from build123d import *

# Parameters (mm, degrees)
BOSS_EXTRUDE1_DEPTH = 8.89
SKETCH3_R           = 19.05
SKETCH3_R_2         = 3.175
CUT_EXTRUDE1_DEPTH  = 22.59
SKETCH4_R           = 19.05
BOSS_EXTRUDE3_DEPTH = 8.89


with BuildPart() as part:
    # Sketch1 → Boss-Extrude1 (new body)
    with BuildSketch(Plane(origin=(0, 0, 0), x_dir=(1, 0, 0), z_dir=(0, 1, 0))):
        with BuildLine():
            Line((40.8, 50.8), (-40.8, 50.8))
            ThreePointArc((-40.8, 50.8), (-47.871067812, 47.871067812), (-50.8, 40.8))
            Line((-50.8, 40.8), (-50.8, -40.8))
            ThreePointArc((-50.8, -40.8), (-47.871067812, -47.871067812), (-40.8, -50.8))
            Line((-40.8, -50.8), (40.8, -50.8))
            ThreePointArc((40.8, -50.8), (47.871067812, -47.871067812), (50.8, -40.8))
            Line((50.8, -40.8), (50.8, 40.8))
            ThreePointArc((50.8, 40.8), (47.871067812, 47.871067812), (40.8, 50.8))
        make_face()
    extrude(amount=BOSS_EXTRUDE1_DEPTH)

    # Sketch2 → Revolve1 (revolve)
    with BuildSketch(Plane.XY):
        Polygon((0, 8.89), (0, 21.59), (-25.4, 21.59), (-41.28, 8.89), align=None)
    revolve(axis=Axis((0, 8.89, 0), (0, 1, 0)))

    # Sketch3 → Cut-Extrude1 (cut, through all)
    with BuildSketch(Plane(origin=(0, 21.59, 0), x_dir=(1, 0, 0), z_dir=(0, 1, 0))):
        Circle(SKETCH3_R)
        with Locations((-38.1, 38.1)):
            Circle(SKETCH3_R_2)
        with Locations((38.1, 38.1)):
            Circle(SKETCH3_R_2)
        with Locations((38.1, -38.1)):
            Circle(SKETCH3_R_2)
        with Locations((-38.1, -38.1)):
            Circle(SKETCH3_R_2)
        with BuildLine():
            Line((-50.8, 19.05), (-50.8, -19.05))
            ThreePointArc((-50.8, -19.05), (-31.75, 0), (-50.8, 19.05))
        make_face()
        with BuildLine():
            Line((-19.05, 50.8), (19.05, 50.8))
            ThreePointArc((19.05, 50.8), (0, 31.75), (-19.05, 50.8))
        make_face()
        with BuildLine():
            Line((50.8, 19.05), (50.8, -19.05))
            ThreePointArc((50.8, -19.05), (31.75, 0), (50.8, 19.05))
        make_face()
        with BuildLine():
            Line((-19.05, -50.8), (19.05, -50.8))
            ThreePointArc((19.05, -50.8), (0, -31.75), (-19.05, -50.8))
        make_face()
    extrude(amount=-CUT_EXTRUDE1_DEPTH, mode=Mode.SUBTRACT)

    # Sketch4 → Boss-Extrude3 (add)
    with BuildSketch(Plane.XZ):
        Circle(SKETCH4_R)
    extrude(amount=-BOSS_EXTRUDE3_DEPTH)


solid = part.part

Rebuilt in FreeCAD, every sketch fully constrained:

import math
import FreeCAD as App
import Part
import Sketcher
from FreeCAD import Vector
Q = App.Units.Quantity


def add_polygon(sketch, points):
    """Adds a closed chain of lines whose ends are joined by coincident constraints."""
    first, n = sketch.GeometryCount, len(points)
    for a, b in zip(points, points[1:] + points[:1]):
        sketch.addGeometry(Part.LineSegment(App.Vector(*a, 0), App.Vector(*b, 0)), False)
    for i in range(n):
        sketch.addConstraint(Sketcher.Constraint("Coincident", first + i, 2, first + (i + 1) % n, 1))

doc = App.newDocument("Part")
body = doc.addObject("PartDesign::Body", "Body")

# Sketch on XZ plane
sketch1 = body.newObject("Sketcher::SketchObject", "Sketch")
sketch1.AttachmentSupport = (doc.getObject("XZ_Plane"), [""])
sketch1.MapMode = "FlatFace"
sketch1.addGeometry([
    Part.LineSegment(Vector(41, -51, 0), Vector(-41, -51, 0)),  # 0
    Part.ArcOfCircle(Part.Circle(Vector(-41, -41, 0), Vector(0, 0, 1), 10), math.radians(180), math.radians(270)),  # 1
    Part.LineSegment(Vector(-51, -41, 0), Vector(-51, 41, 0)),  # 2
    Part.ArcOfCircle(Part.Circle(Vector(-41, 41, 0), Vector(0, 0, 1), 10), math.radians(90), math.radians(180)),  # 3
    Part.LineSegment(Vector(-41, 51, 0), Vector(41, 51, 0)),  # 4
    Part.ArcOfCircle(Part.Circle(Vector(41, 41, 0), Vector(0, 0, 1), 10), math.radians(0), math.radians(90)),  # 5
    Part.LineSegment(Vector(51, 41, 0), Vector(51, -41, 0)),  # 6
    Part.ArcOfCircle(Part.Circle(Vector(41, -41, 0), Vector(0, 0, 1), 10), math.radians(-90), math.radians(0)),  # 7
], False)
sketch1.addConstraint([
    Sketcher.Constraint("Tangent", 0, 2, 1, 2),
    Sketcher.Constraint("Tangent", 1, 1, 2, 1),
    Sketcher.Constraint("Tangent", 2, 2, 3, 2),
    Sketcher.Constraint("Tangent", 3, 1, 4, 1),
    Sketcher.Constraint("Tangent", 4, 2, 5, 2),
    Sketcher.Constraint("Tangent", 5, 1, 6, 1),
    Sketcher.Constraint("Tangent", 6, 2, 7, 2),
    Sketcher.Constraint("Tangent", 7, 1, 0, 1),
    Sketcher.Constraint("Horizontal", 0),
    Sketcher.Constraint("Vertical", 2),
    Sketcher.Constraint("Horizontal", 4),
    Sketcher.Constraint("Vertical", 6),
    Sketcher.Constraint("Equal", 1, 3),
    Sketcher.Constraint("Equal", 3, 5),
    Sketcher.Constraint("Equal", 5, 7),
    Sketcher.Constraint("Symmetric", 1, 3, 5, 3, -1, 1),
    Sketcher.Constraint("Equal", 4, 2),
    Sketcher.Constraint("DistanceY", 0, 2, -1, 1, Q("2 in")),
    Sketcher.Constraint("Radius", 1, Q("10 mm")),
])
pad1 = body.newObject("PartDesign::Pad", "Pad")
pad1.Profile = sketch1
pad1.Length = Q("0.35 in")
pad1.Reversed = True

# Sketch on XY plane
sketch2 = body.newObject("Sketcher::SketchObject", "Sketch001")
sketch2.AttachmentSupport = (doc.getObject("XY_Plane"), [""])
sketch2.MapMode = "FlatFace"
add_polygon(sketch2, [(0, 9), (0, 22), (-25, 22), (-41, 9)])  # lines 0-3
sketch2.addConstraint([
    Sketcher.Constraint("Vertical", 0),
    Sketcher.Constraint("Horizontal", 1),
    Sketcher.Constraint("Horizontal", 3),
    Sketcher.Constraint("PointOnObject", 0, 2, -2),
    Sketcher.Constraint("DistanceX", 1, 2, 1, 1, Q("1 in")),
    Sketcher.Constraint("DistanceY", 0, 1, 0, 2, Q("0.5 in")),
    Sketcher.Constraint("DistanceY", -1, 1, 0, 2, Q("0.85 in")),
    Sketcher.Constraint("DistanceX", 3, 1, 3, 2, Q("41.28 mm")),
])
revolution = body.newObject("PartDesign::Revolution", "Revolution")
revolution.Profile = sketch2
revolution.ReferenceAxis = (sketch2, ["V_Axis"])
revolution.Angle = 360

# Sketch on XZ plane
sketch3 = body.newObject("Sketcher::SketchObject", "Sketch002")
sketch3.AttachmentSupport = (doc.getObject("XZ_Plane"), [""])
sketch3.MapMode = "FlatFace"
sketch3.AttachmentOffset = App.Placement(Vector(0, 0, -0.85 * 25.4), App.Rotation())
sketch3.addGeometry([
    Part.Circle(Vector(0, 0, 0), Vector(0, 0, 1), 19.1),  # 0
    Part.Circle(Vector(-38.1, -38.1, 0), Vector(0, 0, 1), 3.2),  # 1
    Part.Circle(Vector(38.1, -38.1, 0), Vector(0, 0, 1), 3.2),  # 2
    Part.Circle(Vector(38.1, 38.1, 0), Vector(0, 0, 1), 3.2),  # 3
    Part.Circle(Vector(-38.1, 38.1, 0), Vector(0, 0, 1), 3.2),  # 4
    Part.LineSegment(Vector(-50.8, -19.1, 0), Vector(-50.8, 19.1, 0)),  # 5
    Part.ArcOfCircle(Part.Circle(Vector(-50.8, 0, 0), Vector(0, 0, 1), 19.1), math.radians(-90), math.radians(90)),  # 6
    Part.LineSegment(Vector(19.1, -50.8, 0), Vector(-19.1, -50.8, 0)),  # 7
    Part.ArcOfCircle(Part.Circle(Vector(0, -50.8, 0), Vector(0, 0, 1), 19.1), math.radians(0), math.radians(180)),  # 8
    Part.LineSegment(Vector(50.8, 19.1, 0), Vector(50.8, -19.1, 0)),  # 9
    Part.ArcOfCircle(Part.Circle(Vector(50.8, 0, 0), Vector(0, 0, 1), 19.1), math.radians(90), math.radians(270)),  # 10
    Part.LineSegment(Vector(-19.1, 50.8, 0), Vector(19.1, 50.8, 0)),  # 11
    Part.ArcOfCircle(Part.Circle(Vector(0, 50.8, 0), Vector(0, 0, 1), 19.1), math.radians(180), math.radians(360)),  # 12
], False)
sketch3.addConstraint([
    Sketcher.Constraint("Coincident", 5, 1, 6, 1),
    Sketcher.Constraint("Coincident", 6, 2, 5, 2),
    Sketcher.Constraint("Coincident", 7, 1, 8, 1),
    Sketcher.Constraint("Coincident", 8, 2, 7, 2),
    Sketcher.Constraint("Coincident", 9, 1, 10, 1),
    Sketcher.Constraint("Coincident", 10, 2, 9, 2),
    Sketcher.Constraint("Coincident", 11, 1, 12, 1),
    Sketcher.Constraint("Coincident", 12, 2, 11, 2),
    Sketcher.Constraint("Vertical", 5),
    Sketcher.Constraint("Horizontal", 7),
    Sketcher.Constraint("Vertical", 9),
    Sketcher.Constraint("Horizontal", 11),
    Sketcher.Constraint("Coincident", 0, 3, -1, 1),
    Sketcher.Constraint("Equal", 1, 2),
    Sketcher.Constraint("Equal", 2, 3),
    Sketcher.Constraint("Equal", 3, 4),
    Sketcher.Constraint("Equal", 0, 6),
    Sketcher.Constraint("Equal", 6, 8),
    Sketcher.Constraint("Equal", 8, 10),
    Sketcher.Constraint("Equal", 10, 12),
    Sketcher.Constraint("Symmetric", 1, 3, 3, 3, -1, 1),
    Sketcher.Constraint("Symmetric", 2, 3, 4, 3, -1, 1),
    Sketcher.Constraint("Symmetric", 6, 3, 10, 3, -1, 1),
    Sketcher.Constraint("Symmetric", 8, 3, 12, 3, -1, 1),
    Sketcher.Constraint("Symmetric", 1, 3, 2, 3, -2),
    Sketcher.Constraint("Symmetric", 6, 2, 9, 1, -2),
    Sketcher.Constraint("Symmetric", 8, 2, 11, 1, -1),
    Sketcher.Constraint("Horizontal", 8, 3, 7, 1),
    Sketcher.Constraint("Vertical", 6, 3, 5, 1),
    Sketcher.Constraint("Diameter", 0, Q("1.5 in")),
    Sketcher.Constraint("Diameter", 1, Q("0.25 in")),
    Sketcher.Constraint("DistanceX", 6, 3, -1, 1, Q("2 in")),
    Sketcher.Constraint("DistanceY", 8, 3, -1, 1, Q("2 in")),
    Sketcher.Constraint("DistanceX", 1, 3, 2, 3, Q("3 in")),
    Sketcher.Constraint("DistanceY", 2, 3, 3, 3, Q("3 in")),
])
pocket1 = body.newObject("PartDesign::Pocket", "Pocket")
pocket1.Profile = sketch3
pocket1.Type = "ThroughAll"
pocket1.Reversed = True

# Sketch on XZ plane
sketch4 = body.newObject("Sketcher::SketchObject", "Sketch003")
sketch4.AttachmentSupport = (doc.getObject("XZ_Plane"), [""])
sketch4.MapMode = "FlatFace"
sketch4.addGeometry(Part.Circle(Vector(0, 0, 0), Vector(0, 0, 1), 19), False)
sketch4.addConstraint([
    Sketcher.Constraint("Coincident", 0, 3, -1, 1),
    Sketcher.Constraint("Diameter", 0, Q("1.5 in")),
])
pad2 = body.newObject("PartDesign::Pad", "Pad001")
pad2.Profile = sketch4
pad2.Length = Q("0.35 in")
pad2.Reversed = True

doc.recompute()
